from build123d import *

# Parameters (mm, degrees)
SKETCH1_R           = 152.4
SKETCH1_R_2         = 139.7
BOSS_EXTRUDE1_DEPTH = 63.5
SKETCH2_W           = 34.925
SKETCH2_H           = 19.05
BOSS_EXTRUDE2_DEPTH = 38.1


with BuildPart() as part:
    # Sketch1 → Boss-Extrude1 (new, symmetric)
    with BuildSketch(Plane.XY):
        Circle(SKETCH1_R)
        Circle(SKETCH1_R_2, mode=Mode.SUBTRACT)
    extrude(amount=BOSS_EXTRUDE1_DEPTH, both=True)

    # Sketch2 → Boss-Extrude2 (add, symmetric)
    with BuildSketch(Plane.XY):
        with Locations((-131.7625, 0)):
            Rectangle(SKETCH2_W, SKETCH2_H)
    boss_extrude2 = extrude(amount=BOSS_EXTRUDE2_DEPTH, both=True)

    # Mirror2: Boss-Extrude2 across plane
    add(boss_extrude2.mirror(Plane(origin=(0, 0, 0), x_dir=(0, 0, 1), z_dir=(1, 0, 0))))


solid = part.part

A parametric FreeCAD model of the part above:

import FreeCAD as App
import Part
import Sketcher
Q = App.Units.Quantity

doc = App.newDocument("Part")
body = doc.addObject("PartDesign::Body", "Body")

# Sketch on XY plane
sketch1 = body.newObject("Sketcher::SketchObject", "Sketch")
sketch1.AttachmentSupport = (doc.getObject("XY_Plane"), [""])
sketch1.MapMode = "FlatFace"
sketch1.addGeometry([
    Part.Circle(App.Vector(0, 0, 0), App.Vector(0, 0, 1), 152),
    Part.Circle(App.Vector(0, 0, 0), App.Vector(0, 0, 1), 140),
], False)
sketch1.addConstraint([
    Sketcher.Constraint("Coincident", 0, 3, -1, 1),
    Sketcher.Constraint("Coincident", 1, 3, -1, 1),
    Sketcher.Constraint("Diameter", 0, Q("12 in")),
    Sketcher.Constraint("Diameter", 1, Q("11 in")),
])
pad1 = body.newObject("PartDesign::Pad", "Pad")
pad1.Profile = sketch1
pad1.Length = Q("5 in")
pad1.Midplane = True

# Sketch on XY plane
sketch2 = body.newObject("Sketcher::SketchObject", "Sketch001")
sketch2.AttachmentSupport = (doc.getObject("XY_Plane"), [""])
sketch2.MapMode = "FlatFace"
sketch2.addGeometry([
    Part.LineSegment(App.Vector(-149, 10, 0), App.Vector(-149, -10, 0)),
    Part.LineSegment(App.Vector(-149, -10, 0), App.Vector(-114, -10, 0)),
    Part.LineSegment(App.Vector(-114, -10, 0), App.Vector(-114, 10, 0)),
    Part.LineSegment(App.Vector(-114, 10, 0), App.Vector(-149, 10, 0)),
], False)
sketch2.addConstraint([
    Sketcher.Constraint("Coincident", 0, 2, 1, 1),
    Sketcher.Constraint("Coincident", 1, 2, 2, 1),
    Sketcher.Constraint("Coincident", 2, 2, 3, 1),
    Sketcher.Constraint("Coincident", 3, 2, 0, 1),
    Sketcher.Constraint("Vertical", 0),
    Sketcher.Constraint("Horizontal", 1),
    Sketcher.Constraint("Vertical", 2),
    Sketcher.Constraint("Horizontal", 3),
    Sketcher.Constraint("DistanceY", 0, 2, 0, 1, Q("0.75 in")),
    Sketcher.Constraint("DistanceX", 1, 2, -1, 1, Q("4.5 in")),
    Sketcher.Constraint("DistanceX", 1, 1, 1, 2, Q("1.375 in")),
    Sketcher.Constraint("DistanceY", 0, 2, -1, 1, Q("0.375 in")),
])
pad2 = body.newObject("PartDesign::Pad", "Pad001")
pad2.Profile = sketch2
pad2.Length = Q("3 in")
pad2.Midplane = True
doc.recompute()

mirrored = body.newObject("PartDesign::Mirrored", "Mirrored")
mirrored.Originals = [pad2]
mirrored.MirrorPlane = (doc.getObject("YZ_Plane"), [""])
body.Tip = mirrored

doc.recompute()
